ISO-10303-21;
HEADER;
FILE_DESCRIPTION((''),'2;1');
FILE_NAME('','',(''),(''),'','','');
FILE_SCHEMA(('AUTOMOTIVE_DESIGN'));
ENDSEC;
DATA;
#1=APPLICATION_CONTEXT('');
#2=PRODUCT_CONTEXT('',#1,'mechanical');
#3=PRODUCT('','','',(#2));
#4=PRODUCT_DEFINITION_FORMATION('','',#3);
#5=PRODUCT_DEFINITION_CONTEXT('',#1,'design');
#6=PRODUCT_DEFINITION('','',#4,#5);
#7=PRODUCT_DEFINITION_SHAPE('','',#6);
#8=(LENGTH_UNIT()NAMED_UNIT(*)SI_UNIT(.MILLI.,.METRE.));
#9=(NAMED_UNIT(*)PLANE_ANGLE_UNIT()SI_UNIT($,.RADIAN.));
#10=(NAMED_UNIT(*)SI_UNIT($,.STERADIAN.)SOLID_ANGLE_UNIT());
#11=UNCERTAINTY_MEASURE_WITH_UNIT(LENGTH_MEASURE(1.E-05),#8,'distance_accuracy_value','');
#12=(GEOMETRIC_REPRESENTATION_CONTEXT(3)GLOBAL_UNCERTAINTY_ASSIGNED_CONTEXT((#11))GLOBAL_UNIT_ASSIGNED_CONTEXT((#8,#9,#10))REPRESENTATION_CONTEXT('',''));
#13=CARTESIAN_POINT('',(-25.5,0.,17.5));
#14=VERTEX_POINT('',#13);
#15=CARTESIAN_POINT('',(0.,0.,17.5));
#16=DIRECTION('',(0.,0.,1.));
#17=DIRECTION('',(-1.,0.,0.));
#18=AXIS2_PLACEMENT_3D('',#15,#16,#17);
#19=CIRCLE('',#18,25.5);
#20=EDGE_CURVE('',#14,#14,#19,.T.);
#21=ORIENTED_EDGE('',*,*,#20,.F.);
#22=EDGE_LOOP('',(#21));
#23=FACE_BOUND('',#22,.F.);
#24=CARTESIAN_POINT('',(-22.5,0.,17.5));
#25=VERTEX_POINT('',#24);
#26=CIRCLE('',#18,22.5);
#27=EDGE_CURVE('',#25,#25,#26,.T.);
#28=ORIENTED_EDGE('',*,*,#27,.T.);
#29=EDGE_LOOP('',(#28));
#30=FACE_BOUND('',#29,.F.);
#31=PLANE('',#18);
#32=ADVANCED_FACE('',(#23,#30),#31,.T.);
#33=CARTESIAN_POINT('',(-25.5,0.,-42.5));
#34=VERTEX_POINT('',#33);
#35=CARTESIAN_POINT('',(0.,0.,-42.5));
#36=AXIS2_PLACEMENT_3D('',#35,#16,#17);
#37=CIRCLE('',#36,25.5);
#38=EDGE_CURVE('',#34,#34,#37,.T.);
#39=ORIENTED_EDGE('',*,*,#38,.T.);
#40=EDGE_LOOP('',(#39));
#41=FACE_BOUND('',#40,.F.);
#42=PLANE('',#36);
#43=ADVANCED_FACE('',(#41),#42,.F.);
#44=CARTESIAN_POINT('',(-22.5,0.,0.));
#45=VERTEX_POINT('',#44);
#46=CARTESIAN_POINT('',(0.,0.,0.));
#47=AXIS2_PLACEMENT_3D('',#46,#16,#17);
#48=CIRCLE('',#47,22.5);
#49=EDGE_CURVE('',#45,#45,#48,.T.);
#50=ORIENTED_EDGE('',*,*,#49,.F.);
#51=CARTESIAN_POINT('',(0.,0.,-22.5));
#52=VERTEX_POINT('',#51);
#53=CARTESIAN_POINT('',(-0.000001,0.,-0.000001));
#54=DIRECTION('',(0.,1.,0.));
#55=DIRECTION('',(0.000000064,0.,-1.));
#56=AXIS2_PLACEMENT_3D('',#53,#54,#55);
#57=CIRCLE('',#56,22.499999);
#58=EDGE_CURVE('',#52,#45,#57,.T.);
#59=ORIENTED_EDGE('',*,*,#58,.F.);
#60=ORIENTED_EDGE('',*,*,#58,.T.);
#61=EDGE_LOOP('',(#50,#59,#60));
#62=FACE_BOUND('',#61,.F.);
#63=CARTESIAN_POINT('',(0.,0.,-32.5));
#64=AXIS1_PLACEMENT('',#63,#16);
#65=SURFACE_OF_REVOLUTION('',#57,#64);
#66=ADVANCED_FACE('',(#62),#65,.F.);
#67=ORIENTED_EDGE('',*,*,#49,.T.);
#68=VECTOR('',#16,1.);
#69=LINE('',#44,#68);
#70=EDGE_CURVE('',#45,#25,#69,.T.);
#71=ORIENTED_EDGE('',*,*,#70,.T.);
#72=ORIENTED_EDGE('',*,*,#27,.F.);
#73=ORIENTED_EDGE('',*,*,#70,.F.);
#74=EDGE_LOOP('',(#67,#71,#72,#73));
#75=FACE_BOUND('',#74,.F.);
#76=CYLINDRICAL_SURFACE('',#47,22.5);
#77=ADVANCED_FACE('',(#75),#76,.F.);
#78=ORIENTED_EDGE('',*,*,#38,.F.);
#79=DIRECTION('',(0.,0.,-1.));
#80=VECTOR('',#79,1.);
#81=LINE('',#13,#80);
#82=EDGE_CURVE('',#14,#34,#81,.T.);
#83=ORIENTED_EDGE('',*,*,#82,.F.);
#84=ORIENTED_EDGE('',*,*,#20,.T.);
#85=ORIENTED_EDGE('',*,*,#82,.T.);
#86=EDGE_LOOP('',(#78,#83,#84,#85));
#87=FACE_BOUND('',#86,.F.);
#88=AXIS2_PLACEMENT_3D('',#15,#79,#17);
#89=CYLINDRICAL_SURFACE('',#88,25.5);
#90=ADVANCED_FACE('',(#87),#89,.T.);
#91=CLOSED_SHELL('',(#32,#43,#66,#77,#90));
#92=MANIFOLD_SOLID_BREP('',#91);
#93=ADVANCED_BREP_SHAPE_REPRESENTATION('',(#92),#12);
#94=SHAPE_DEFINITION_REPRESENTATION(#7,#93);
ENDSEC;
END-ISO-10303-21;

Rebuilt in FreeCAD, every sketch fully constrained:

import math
import FreeCAD as App
import Part
import Sketcher

doc = App.newDocument("Part")
params = doc.addObject("Spreadsheet::Sheet", "Params")
for row, (alias, value) in enumerate([
    ("sketch1_radius", "22.499999 mm"),
    ("sketch1_width", "3 mm"),
    ("sketch1_height", "60 mm"),
    ("sketch1_height2", "20 mm"),
    ("revolution_angle", "360 deg"),
], start=1):
    params.set(f"A{row}", alias)
    params.set(f"B{row}", "=" + value)
    params.setAlias(f"B{row}", alias)

body = doc.addObject("PartDesign::Body", "Body")

# Sketch on XZ plane
sketch1 = body.newObject("Sketcher::SketchObject", "Sketch")
sketch1.AttachmentSupport = (doc.getObject("XZ_Plane"), [""])
sketch1.MapMode = "FlatFace"
sketch1.addGeometry([
    Part.ArcOfCircle(Part.Circle(App.Vector(-0.000001, -0.000001, 0), App.Vector(0, 0, 1), 22.499999), math.radians(179.999996), math.radians(270.000004)),  # 0
    Part.LineSegment(App.Vector(-22.5, 0, 0), App.Vector(-22.5, 17.5, 0)),  # 1
    Part.LineSegment(App.Vector(-22.5, 17.5, 0), App.Vector(-25.5, 17.5, 0)),  # 2
    Part.LineSegment(App.Vector(-25.5, 17.5, 0), App.Vector(-25.5, -42.5, 0)),  # 3
    Part.LineSegment(App.Vector(-25.5, -42.5, 0), App.Vector(0, -42.5, 0)),  # 4
    Part.LineSegment(App.Vector(0, -42.5, 0), App.Vector(0, -22.5, 0)),  # 5
], False)
sketch1.addConstraint([
    Sketcher.Constraint("Tangent", 0, 1, 1, 1),
    Sketcher.Constraint("Coincident", 1, 2, 2, 1),
    Sketcher.Constraint("Coincident", 2, 2, 3, 1),
    Sketcher.Constraint("Coincident", 3, 2, 4, 1),
    Sketcher.Constraint("Coincident", 4, 2, 5, 1),
    Sketcher.Constraint("Coincident", 5, 2, 0, 2),
    Sketcher.Constraint("Vertical", 1),
    Sketcher.Constraint("Horizontal", 2),
    Sketcher.Constraint("Vertical", 3),
    Sketcher.Constraint("Horizontal", 4),
    Sketcher.Constraint("Vertical", 5),
    Sketcher.Constraint("Coincident", 0, 3, -1, 1),
    Sketcher.Constraint("PointOnObject", 4, 2, -2),
    Sketcher.Constraint("Radius", 0, 22.499999),
    Sketcher.Constraint("DistanceX", 2, 2, 2, 1, 3.0),
    Sketcher.Constraint("DistanceY", 3, 2, 3, 1, 60.0),
    Sketcher.Constraint("DistanceY", 5, 1, 5, 2, 20.0),
])
sketch1.setExpression("Constraints[13]", "Params.sketch1_radius")
sketch1.setExpression("Constraints[14]", "Params.sketch1_width")
sketch1.setExpression("Constraints[15]", "Params.sketch1_height")
sketch1.setExpression("Constraints[16]", "Params.sketch1_height2")
revolution = body.newObject("PartDesign::Revolution", "Revolution")
revolution.Profile = sketch1
revolution.ReferenceAxis = (sketch1, ["V_Axis"])
revolution.setExpression("Angle", "Params.revolution_angle")

doc.recompute()
